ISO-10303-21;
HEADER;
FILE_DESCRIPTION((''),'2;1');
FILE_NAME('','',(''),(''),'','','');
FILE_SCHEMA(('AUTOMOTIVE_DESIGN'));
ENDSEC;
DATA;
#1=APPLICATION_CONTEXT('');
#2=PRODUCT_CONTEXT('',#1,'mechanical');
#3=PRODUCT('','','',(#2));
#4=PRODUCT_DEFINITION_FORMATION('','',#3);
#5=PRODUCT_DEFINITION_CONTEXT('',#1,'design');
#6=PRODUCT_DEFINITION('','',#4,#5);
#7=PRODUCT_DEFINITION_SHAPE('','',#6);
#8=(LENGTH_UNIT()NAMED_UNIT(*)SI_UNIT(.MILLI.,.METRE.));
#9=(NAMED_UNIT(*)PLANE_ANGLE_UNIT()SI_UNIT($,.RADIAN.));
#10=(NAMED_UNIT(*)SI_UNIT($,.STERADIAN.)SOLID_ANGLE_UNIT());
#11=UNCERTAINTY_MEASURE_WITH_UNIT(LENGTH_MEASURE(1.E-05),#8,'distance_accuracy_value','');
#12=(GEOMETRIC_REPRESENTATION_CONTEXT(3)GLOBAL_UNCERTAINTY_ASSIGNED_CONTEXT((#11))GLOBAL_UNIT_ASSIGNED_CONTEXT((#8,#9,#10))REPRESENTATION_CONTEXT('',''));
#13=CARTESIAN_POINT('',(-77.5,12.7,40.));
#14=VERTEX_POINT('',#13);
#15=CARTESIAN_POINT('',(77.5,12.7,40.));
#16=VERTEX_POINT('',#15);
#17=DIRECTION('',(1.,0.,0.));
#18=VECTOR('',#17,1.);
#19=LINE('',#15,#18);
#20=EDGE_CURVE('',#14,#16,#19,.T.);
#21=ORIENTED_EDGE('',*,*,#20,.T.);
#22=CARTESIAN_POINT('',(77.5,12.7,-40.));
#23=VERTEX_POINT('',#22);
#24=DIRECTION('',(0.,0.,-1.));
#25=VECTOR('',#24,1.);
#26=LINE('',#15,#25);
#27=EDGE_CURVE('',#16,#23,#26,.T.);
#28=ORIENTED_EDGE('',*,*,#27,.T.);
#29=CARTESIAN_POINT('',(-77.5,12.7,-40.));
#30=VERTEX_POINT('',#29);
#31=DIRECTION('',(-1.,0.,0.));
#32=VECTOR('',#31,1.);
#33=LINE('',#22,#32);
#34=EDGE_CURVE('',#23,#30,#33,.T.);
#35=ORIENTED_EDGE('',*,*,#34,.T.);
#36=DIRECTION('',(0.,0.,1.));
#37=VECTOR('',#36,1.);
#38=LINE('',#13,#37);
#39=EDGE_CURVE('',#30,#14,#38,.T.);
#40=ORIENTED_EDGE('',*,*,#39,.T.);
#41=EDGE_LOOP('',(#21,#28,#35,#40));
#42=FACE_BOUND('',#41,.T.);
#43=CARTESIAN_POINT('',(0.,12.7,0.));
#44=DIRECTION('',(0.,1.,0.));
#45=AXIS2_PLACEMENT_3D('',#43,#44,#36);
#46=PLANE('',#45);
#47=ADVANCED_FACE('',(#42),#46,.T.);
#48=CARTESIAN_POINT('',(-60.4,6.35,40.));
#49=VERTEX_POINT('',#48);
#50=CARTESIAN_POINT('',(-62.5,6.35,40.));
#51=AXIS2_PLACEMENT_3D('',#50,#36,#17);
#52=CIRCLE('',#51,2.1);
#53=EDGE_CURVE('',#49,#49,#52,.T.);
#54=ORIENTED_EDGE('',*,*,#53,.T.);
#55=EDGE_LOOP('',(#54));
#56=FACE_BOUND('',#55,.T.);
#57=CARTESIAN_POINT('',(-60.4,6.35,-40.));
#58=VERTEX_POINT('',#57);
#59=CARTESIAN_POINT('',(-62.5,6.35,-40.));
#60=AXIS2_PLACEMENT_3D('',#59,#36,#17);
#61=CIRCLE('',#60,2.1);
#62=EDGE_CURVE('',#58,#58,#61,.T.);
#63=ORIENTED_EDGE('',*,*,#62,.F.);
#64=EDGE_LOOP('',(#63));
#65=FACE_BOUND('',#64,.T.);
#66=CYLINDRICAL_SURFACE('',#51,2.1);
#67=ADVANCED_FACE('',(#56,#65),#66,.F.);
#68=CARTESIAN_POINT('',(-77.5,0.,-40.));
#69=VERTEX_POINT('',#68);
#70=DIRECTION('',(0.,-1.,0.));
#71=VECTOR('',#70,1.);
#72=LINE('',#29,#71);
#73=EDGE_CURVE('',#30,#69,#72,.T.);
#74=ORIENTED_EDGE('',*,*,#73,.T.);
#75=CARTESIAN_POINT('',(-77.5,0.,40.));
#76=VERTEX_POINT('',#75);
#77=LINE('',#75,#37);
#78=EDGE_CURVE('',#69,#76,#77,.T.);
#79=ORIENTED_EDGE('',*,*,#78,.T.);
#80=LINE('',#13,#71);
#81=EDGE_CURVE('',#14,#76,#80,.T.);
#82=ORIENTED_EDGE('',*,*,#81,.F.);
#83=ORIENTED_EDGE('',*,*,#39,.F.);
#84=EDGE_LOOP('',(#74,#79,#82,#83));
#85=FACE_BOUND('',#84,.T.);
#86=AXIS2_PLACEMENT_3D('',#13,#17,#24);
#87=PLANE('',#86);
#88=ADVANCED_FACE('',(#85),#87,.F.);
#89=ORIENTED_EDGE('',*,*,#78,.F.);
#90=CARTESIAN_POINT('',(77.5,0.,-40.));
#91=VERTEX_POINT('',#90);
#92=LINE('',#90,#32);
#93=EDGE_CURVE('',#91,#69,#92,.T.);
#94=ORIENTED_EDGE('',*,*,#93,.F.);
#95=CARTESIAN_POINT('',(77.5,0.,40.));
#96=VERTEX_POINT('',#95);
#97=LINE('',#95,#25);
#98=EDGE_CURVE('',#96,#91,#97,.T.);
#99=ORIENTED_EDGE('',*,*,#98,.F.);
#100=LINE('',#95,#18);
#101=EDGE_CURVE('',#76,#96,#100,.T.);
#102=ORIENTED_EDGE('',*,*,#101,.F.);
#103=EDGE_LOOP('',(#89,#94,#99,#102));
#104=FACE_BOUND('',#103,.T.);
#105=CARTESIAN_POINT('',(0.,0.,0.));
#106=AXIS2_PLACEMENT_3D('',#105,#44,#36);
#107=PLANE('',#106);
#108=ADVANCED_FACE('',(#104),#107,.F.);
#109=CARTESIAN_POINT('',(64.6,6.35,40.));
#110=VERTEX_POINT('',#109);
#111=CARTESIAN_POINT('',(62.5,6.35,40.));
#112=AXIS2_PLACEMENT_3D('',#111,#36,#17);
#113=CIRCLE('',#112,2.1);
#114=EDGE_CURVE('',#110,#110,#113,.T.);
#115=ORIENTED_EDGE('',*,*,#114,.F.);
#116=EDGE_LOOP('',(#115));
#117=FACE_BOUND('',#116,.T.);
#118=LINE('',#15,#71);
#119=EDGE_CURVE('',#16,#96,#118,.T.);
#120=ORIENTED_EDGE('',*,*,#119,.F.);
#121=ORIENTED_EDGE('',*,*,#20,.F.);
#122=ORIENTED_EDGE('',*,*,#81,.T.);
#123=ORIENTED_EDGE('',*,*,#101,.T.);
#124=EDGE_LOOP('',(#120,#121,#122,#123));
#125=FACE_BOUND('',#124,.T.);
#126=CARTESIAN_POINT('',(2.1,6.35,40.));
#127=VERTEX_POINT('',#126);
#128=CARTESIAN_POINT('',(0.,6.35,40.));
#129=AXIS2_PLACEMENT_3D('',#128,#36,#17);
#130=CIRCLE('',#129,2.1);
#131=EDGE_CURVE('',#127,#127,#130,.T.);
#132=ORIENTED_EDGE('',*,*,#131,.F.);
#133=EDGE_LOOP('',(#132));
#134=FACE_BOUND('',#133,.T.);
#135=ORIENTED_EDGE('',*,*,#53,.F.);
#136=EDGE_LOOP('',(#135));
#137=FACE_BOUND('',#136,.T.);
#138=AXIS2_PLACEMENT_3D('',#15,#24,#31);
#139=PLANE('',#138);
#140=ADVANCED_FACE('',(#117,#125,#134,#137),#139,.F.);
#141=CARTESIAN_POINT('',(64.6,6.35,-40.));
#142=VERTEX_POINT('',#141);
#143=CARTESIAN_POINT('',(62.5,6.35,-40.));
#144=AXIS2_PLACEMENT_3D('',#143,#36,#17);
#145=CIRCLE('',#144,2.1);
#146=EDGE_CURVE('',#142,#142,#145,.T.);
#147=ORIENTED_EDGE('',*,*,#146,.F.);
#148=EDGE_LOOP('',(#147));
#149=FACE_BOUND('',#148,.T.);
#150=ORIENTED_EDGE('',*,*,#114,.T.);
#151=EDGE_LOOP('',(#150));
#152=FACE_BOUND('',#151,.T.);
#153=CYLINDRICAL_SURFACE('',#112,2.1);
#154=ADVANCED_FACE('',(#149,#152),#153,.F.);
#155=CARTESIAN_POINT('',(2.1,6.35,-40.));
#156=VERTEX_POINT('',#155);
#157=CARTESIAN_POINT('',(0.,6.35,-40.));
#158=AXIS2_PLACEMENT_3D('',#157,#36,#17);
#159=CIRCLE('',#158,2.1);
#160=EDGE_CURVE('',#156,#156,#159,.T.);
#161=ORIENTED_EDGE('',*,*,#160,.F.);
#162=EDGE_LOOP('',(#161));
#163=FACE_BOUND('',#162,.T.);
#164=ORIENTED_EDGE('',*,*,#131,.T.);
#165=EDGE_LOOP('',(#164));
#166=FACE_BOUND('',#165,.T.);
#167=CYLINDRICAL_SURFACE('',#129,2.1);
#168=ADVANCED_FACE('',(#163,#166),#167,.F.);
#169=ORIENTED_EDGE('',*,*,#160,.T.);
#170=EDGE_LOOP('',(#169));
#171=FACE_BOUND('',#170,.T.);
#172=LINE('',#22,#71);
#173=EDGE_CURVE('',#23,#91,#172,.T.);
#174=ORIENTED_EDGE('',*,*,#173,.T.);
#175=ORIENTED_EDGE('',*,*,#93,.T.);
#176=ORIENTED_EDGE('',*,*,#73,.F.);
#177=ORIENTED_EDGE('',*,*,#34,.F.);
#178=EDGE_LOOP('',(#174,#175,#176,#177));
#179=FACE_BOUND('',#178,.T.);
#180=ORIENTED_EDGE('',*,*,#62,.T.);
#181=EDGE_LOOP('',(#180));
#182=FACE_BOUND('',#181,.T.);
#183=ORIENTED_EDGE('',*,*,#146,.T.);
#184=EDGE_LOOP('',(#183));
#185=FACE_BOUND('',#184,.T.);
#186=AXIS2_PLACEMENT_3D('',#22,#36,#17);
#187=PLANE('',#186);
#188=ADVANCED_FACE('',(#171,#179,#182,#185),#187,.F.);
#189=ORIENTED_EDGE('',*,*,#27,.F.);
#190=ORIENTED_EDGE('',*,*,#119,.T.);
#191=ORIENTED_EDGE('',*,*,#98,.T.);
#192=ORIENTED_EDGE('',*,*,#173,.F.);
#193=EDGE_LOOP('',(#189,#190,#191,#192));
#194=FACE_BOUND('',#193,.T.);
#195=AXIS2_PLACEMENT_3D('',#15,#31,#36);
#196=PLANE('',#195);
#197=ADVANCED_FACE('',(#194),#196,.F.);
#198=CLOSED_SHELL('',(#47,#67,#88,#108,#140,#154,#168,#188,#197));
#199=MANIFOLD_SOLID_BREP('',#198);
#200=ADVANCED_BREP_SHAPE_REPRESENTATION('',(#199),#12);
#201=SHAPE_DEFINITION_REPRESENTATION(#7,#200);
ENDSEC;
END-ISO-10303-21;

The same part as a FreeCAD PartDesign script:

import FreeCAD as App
import Part
import Sketcher

V = App.Vector
Q = App.Units.Quantity

doc = App.newDocument("Part")
body = doc.addObject("PartDesign::Body", "Body")

# Sketch on XZ plane
sketch1 = doc.addObject("Sketcher::SketchObject", "Sketch")
body.addObject(sketch1)
sketch1.AttachmentSupport = (doc.XZ_Plane, [""])
sketch1.MapMode = "FlatFace"
sketch1.addGeometry([
    Part.LineSegment(V(-78, -40, 0), V(-78, 40, 0)),
    Part.LineSegment(V(-78, 40, 0), V(78, 40, 0)),
    Part.LineSegment(V(78, 40, 0), V(78, -40, 0)),
    Part.LineSegment(V(78, -40, 0), V(-78, -40, 0)),
], False)
sketch1.addConstraint([
    Sketcher.Constraint("Coincident", 0, 2, 1, 1),
    Sketcher.Constraint("Coincident", 1, 2, 2, 1),
    Sketcher.Constraint("Coincident", 2, 2, 3, 1),
    Sketcher.Constraint("Coincident", 3, 2, 0, 1),
    Sketcher.Constraint("Vertical", 0),
    Sketcher.Constraint("Horizontal", 1),
    Sketcher.Constraint("Vertical", 2),
    Sketcher.Constraint("Horizontal", 3),
    Sketcher.Constraint("Symmetric", 0, 2, 2, 2, -1, 1),
    Sketcher.Constraint("DistanceX", 1, 1, 1, 2, Q("155 mm")),
    Sketcher.Constraint("DistanceY", 0, 1, 0, 2, Q("80 mm")),
])
pad1 = doc.addObject("PartDesign::Pad", "Pad")
body.addObject(pad1)
pad1.Profile = sketch1
pad1.Length = 12.7
pad1.Reversed = True

# Sketch on XY plane
sketch2 = doc.addObject("Sketcher::SketchObject", "Sketch001")
body.addObject(sketch2)
sketch2.AttachmentSupport = (doc.XY_Plane, [""])
sketch2.MapMode = "FlatFace"
sketch2.AttachmentOffset = App.Placement(V(0, 0, 40), App.Rotation())
sketch2.addGeometry([
    Part.Circle(V(-62.5, 6.3, 0), V(0, 0, 1), 2.1),
    Part.Circle(V(0, 6.3, 0), V(0, 0, 1), 2.1),
    Part.Circle(V(62.5, 6.3, 0), V(0, 0, 1), 2.1),
], False)
sketch2.addConstraint([
    Sketcher.Constraint("Equal", 0, 1),
    Sketcher.Constraint("Equal", 1, 2),
    Sketcher.Constraint("Symmetric", 0, 3, 2, 3, -2),
    Sketcher.Constraint("PointOnObject", 1, 3, -2),
    Sketcher.Constraint("Horizontal", 0, 3, 1, 3),
    Sketcher.Constraint("Diameter", 0, Q("4.2 mm")),
    Sketcher.Constraint("DistanceX", 0, 3, 2, 3, Q("125 mm")),
    Sketcher.Constraint("DistanceY", -1, 1, 0, 3, Q("6.35 mm")),
])
doc.recompute()
hole = doc.addObject("PartDesign::Hole", "Hole")
body.addObject(hole)
hole.Profile = sketch2
hole.ThreadType = "None"
hole.Diameter = 4.2
hole.DepthType = "ThroughAll"

doc.recompute()
